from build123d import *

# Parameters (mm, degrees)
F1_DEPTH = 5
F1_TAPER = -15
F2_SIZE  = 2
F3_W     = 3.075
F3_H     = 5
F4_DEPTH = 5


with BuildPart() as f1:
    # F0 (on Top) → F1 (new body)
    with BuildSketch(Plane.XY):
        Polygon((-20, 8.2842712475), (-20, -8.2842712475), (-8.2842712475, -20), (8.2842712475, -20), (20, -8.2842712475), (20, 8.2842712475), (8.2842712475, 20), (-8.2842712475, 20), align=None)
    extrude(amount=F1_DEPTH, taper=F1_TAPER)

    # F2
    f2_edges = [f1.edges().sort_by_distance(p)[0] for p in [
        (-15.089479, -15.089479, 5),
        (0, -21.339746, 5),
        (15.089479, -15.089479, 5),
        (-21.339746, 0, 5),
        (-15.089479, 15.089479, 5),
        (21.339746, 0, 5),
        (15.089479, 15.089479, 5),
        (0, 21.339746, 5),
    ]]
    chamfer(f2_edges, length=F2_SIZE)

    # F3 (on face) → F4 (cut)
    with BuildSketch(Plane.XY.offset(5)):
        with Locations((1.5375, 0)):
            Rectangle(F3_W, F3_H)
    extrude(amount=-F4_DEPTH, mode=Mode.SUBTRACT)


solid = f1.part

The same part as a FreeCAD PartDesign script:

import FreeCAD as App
import Part
import Sketcher


def edges_at(feature, points):
    """Names of the edges that pass closest to the given points."""
    edges = feature.Shape.Edges
    near = lambda p: min(range(len(edges)), key=lambda i: edges[i].distToShape(Part.Vertex(*p))[0])
    return sorted({f"Edge{near(p) + 1}" for p in points})

doc = App.newDocument("Part")
body = doc.addObject("PartDesign::Body", "Body")

# Sketch on XY plane
sketch1 = body.newObject("Sketcher::SketchObject", "Sketch")
sketch1.AttachmentSupport = (doc.getObject("XY_Plane"), [""])
sketch1.MapMode = "FlatFace"
sketch1.addGeometry(Part.LineSegment(App.Vector(-20, 8, 0), App.Vector(-20, -8, 0)), False)
sketch1.addGeometry(Part.LineSegment(App.Vector(-20, -8, 0), App.Vector(-8, -20, 0)), False)
sketch1.addGeometry(Part.LineSegment(App.Vector(-8, -20, 0), App.Vector(8, -20, 0)), False)
sketch1.addGeometry(Part.LineSegment(App.Vector(8, -20, 0), App.Vector(20, -8, 0)), False)
sketch1.addGeometry(Part.LineSegment(App.Vector(20, -8, 0), App.Vector(20, 8, 0)), False)
sketch1.addGeometry(Part.LineSegment(App.Vector(20, 8, 0), App.Vector(8, 20, 0)), False)
sketch1.addGeometry(Part.LineSegment(App.Vector(8, 20, 0), App.Vector(-8, 20, 0)), False)
sketch1.addGeometry(Part.LineSegment(App.Vector(-8, 20, 0), App.Vector(-20, 8, 0)), False)
sketch1.addConstraint(Sketcher.Constraint("Coincident", 0, 2, 1, 1))
sketch1.addConstraint(Sketcher.Constraint("Coincident", 1, 2, 2, 1))
sketch1.addConstraint(Sketcher.Constraint("Coincident", 2, 2, 3, 1))
sketch1.addConstraint(Sketcher.Constraint("Coincident", 3, 2, 4, 1))
sketch1.addConstraint(Sketcher.Constraint("Coincident", 4, 2, 5, 1))
sketch1.addConstraint(Sketcher.Constraint("Coincident", 5, 2, 6, 1))
sketch1.addConstraint(Sketcher.Constraint("Coincident", 6, 2, 7, 1))
sketch1.addConstraint(Sketcher.Constraint("Coincident", 7, 2, 0, 1))
sketch1.addConstraint(Sketcher.Constraint("Vertical", 0))
sketch1.addConstraint(Sketcher.Constraint("Horizontal", 2))
sketch1.addConstraint(Sketcher.Constraint("Vertical", 4))
sketch1.addConstraint(Sketcher.Constraint("Horizontal", 6))
sketch1.addConstraint(Sketcher.Constraint("Symmetric", 0, 2, 4, 2, -1, 1))
sketch1.addConstraint(Sketcher.Constraint("Symmetric", 1, 2, 5, 2, -1, 1))
sketch1.addConstraint(Sketcher.Constraint("Perpendicular", 1, 3))
sketch1.addConstraint(Sketcher.Constraint("Perpendicular", 5, 7))
sketch1.addConstraint(Sketcher.Constraint("Horizontal", 0, 2, 3, 2))
sketch1.addConstraint(Sketcher.Constraint("Horizontal", 4, 2, 7, 2))
sketch1.addConstraint(Sketcher.Constraint("Vertical", 2, 2, 5, 2))
sketch1.addConstraint(Sketcher.Constraint("Equal", 6, 0))
sketch1.addConstraint(Sketcher.Constraint("DistanceX", 0, 2, -1, 1, 20.0))
sketch1.addConstraint(Sketcher.Constraint("DistanceX", 2, 1, 2, 2, 16.568542))
pad1 = body.newObject("PartDesign::Pad", "Pad")
pad1.Profile = sketch1
pad1.Length = 5
pad1.TaperAngle = 15
doc.recompute()

chamfer = body.newObject("PartDesign::Chamfer", "Chamfer")
chamfer.Base = (pad1, edges_at(pad1, [
    (-15.089, -15.089, 5),
    (0, -21.34, 5),
    (15.089, -15.089, 5),
    (-21.34, 0, 5),
    (-15.089, 15.089, 5),
    (21.34, 0, 5),
    (15.089, 15.089, 5),
    (0, 21.34, 5),
]))
chamfer.Size = 2

# Sketch on XY plane
sketch2 = body.newObject("Sketcher::SketchObject", "Sketch001")
sketch2.AttachmentSupport = (doc.getObject("XY_Plane"), [""])
sketch2.MapMode = "FlatFace"
sketch2.AttachmentOffset = App.Placement(App.Vector(0, 0, 5), App.Rotation())
sketch2.addGeometry(Part.LineSegment(App.Vector(0, 2.5, 0), App.Vector(0, -2.5, 0)), False)
sketch2.addGeometry(Part.LineSegment(App.Vector(0, -2.5, 0), App.Vector(3.1, -2.5, 0)), False)
sketch2.addGeometry(Part.LineSegment(App.Vector(3.1, -2.5, 0), App.Vector(3.1, 2.5, 0)), False)
sketch2.addGeometry(Part.LineSegment(App.Vector(3.1, 2.5, 0), App.Vector(0, 2.5, 0)), False)
sketch2.addConstraint(Sketcher.Constraint("Coincident", 0, 2, 1, 1))
sketch2.addConstraint(Sketcher.Constraint("Coincident", 1, 2, 2, 1))
sketch2.addConstraint(Sketcher.Constraint("Coincident", 2, 2, 3, 1))
sketch2.addConstraint(Sketcher.Constraint("Coincident", 3, 2, 0, 1))
sketch2.addConstraint(Sketcher.Constraint("Vertical", 0))
sketch2.addConstraint(Sketcher.Constraint("Horizontal", 1))
sketch2.addConstraint(Sketcher.Constraint("Vertical", 2))
sketch2.addConstraint(Sketcher.Constraint("Horizontal", 3))
sketch2.addConstraint(Sketcher.Constraint("Symmetric", 0, 2, 3, 2, -1, 1))
sketch2.addConstraint(Sketcher.Constraint("DistanceY", 0, 2, 0, 1, 5.0))
sketch2.addConstraint(Sketcher.Constraint("DistanceX", 1, 1, 1, 2, 3.075))
pocket1 = body.newObject("PartDesign::Pocket", "Pocket")
pocket1.Profile = sketch2
pocket1.Length = 5

doc.recompute()
